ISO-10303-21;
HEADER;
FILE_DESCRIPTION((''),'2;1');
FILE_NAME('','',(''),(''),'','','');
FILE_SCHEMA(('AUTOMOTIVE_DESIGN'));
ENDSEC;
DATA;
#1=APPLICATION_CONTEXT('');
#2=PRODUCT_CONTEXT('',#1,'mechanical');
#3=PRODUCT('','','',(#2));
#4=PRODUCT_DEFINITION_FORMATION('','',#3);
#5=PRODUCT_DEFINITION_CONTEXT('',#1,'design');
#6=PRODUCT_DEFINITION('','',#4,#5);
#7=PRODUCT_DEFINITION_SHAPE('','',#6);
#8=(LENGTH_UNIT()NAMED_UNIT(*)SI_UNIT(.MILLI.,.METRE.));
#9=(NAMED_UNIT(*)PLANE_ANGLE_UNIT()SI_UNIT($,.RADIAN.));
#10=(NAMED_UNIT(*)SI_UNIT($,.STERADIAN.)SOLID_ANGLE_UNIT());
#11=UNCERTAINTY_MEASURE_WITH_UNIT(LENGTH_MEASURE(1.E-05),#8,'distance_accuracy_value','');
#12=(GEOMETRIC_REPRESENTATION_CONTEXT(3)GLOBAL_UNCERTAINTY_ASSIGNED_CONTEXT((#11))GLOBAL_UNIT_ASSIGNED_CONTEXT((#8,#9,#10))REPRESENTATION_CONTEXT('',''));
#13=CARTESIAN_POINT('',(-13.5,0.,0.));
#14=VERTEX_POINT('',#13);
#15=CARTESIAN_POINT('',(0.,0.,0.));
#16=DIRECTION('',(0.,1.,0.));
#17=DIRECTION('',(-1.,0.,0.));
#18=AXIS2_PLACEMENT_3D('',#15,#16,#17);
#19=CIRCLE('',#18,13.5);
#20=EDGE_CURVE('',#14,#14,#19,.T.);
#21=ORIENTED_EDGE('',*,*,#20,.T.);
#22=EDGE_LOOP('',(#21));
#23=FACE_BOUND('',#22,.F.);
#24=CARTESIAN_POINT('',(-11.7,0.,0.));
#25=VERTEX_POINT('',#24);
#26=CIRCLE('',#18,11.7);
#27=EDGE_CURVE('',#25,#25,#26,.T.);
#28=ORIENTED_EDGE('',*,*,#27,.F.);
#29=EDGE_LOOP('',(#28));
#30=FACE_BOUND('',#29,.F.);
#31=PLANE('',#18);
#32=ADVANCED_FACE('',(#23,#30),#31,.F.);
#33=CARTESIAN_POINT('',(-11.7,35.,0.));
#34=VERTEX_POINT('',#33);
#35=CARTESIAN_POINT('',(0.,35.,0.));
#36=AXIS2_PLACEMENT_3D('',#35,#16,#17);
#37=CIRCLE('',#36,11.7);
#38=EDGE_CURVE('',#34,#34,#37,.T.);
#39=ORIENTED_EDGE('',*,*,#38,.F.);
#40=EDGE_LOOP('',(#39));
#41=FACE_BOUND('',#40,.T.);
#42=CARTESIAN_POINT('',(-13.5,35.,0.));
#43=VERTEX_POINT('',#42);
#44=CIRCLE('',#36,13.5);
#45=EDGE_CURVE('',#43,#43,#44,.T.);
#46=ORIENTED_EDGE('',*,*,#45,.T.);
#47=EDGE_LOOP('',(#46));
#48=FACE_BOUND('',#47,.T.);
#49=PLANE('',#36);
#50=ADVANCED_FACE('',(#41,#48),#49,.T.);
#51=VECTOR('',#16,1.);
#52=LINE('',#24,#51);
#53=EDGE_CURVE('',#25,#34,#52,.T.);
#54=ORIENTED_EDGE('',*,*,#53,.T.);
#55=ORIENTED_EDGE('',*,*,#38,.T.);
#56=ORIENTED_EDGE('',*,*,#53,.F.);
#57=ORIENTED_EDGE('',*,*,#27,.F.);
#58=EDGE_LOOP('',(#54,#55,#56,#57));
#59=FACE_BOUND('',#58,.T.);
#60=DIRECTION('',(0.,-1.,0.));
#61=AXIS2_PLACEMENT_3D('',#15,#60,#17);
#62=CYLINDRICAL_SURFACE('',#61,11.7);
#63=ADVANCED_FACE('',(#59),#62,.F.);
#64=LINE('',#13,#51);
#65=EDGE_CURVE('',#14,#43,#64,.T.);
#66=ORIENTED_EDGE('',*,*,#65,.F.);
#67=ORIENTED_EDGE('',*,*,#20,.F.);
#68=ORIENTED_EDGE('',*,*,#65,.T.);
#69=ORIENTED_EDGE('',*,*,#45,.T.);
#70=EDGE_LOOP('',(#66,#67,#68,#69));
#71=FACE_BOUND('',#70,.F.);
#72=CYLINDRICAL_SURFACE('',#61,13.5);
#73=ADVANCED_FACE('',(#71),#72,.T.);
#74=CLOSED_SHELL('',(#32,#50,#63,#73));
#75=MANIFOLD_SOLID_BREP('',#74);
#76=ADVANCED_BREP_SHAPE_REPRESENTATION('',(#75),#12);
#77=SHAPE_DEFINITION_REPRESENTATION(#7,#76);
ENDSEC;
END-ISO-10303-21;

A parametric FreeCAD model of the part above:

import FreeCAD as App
import Part
import Sketcher
from FreeCAD import Vector
Q = App.Units.Quantity

doc = App.newDocument("Part")
body = doc.addObject("PartDesign::Body", "Body")

# Sketch on XZ plane
sketch1 = doc.addObject("Sketcher::SketchObject", "Sketch")
body.addObject(sketch1)
sketch1.AttachmentSupport = (doc.XZ_Plane, [""])
sketch1.MapMode = "FlatFace"
sketch1.addGeometry([
    Part.Circle(Vector(0, 0, 0), Vector(0, 0, 1), 13.5),
    Part.Circle(Vector(0, 0, 0), Vector(0, 0, 1), 11.7),
], False)
sketch1.addConstraint([
    Sketcher.Constraint("Coincident", 0, 3, -1, 1),
    Sketcher.Constraint("Coincident", 1, 3, -1, 1),
    Sketcher.Constraint("Diameter", 0, Q("27 mm")),
    Sketcher.Constraint("Diameter", 1, Q("23.4 mm")),
])
pad1 = doc.addObject("PartDesign::Pad", "Pad")
body.addObject(pad1)
pad1.Profile = sketch1
pad1.Length = 35
pad1.Reversed = True

doc.recompute()
